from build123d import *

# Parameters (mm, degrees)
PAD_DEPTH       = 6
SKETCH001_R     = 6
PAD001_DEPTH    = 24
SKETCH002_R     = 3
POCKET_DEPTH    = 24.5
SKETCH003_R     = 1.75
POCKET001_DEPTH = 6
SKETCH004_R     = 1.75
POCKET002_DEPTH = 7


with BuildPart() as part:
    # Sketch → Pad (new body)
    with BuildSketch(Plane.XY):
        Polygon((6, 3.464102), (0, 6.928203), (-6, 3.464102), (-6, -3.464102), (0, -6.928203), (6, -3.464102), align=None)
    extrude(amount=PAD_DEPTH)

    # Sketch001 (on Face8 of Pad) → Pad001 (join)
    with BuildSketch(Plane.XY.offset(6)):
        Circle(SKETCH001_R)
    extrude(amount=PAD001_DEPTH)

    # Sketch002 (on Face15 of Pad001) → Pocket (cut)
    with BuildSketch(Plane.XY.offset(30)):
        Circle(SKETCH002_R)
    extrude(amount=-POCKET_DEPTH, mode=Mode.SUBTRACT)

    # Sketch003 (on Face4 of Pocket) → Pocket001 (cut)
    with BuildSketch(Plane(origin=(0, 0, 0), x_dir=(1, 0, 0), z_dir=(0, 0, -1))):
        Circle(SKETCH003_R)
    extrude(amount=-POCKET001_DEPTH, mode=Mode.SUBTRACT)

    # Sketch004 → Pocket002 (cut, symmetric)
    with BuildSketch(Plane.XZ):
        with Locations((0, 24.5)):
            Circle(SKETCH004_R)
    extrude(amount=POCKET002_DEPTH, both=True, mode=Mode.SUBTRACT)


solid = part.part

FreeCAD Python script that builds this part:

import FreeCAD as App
import Part
import Sketcher
from FreeCAD import Vector
Q = App.Units.Quantity


def add_polygon(sketch, points):
    """Adds a closed chain of lines whose ends are joined by coincident constraints."""
    first, n = sketch.GeometryCount, len(points)
    for a, b in zip(points, points[1:] + points[:1]):
        sketch.addGeometry(Part.LineSegment(App.Vector(*a, 0), App.Vector(*b, 0)), False)
    for i in range(n):
        sketch.addConstraint(Sketcher.Constraint("Coincident", first + i, 2, first + (i + 1) % n, 1))

doc = App.newDocument("Part")
body = doc.addObject("PartDesign::Body", "Body")

# Sketch on XY plane
sketch1 = body.newObject("Sketcher::SketchObject", "Sketch")
sketch1.AttachmentSupport = (doc.getObject("XY_Plane"), [""])
sketch1.MapMode = "FlatFace"
add_polygon(sketch1, [(6, 3.464102), (0, 6.928203), (-6, 3.464102), (-6, -3.464102), (0, -6.928203), (6, -3.464102)])  # lines 0-5
sketch1.addConstraint(Sketcher.Constraint("Vertical", 2))
sketch1.addConstraint(Sketcher.Constraint("Vertical", 5))
sketch1.addConstraint(Sketcher.Constraint("Symmetric", 0, 2, 3, 2, -1, 1))
sketch1.addConstraint(Sketcher.Constraint("Symmetric", 1, 2, 4, 2, -1, 1))
sketch1.addConstraint(Sketcher.Constraint("PointOnObject", 0, 2, -2))
sketch1.addConstraint(Sketcher.Constraint("Parallel", 0, 3))
sketch1.addConstraint(Sketcher.Constraint("Horizontal", 2, 2, 4, 2))
sketch1.addConstraint(Sketcher.Constraint("Angle", 0, Q("150.000004 deg")))
sketch1.addConstraint(Sketcher.Constraint("DistanceX", 1, 2, -1, 1, Q("6 mm")))
sketch1.addConstraint(Sketcher.Constraint("DistanceY", -1, 1, 1, 2, Q("3.464102 mm")))
pad1 = body.newObject("PartDesign::Pad", "Pad")
pad1.Profile = sketch1
pad1.Length = 6

# Sketch on XY plane
sketch2 = body.newObject("Sketcher::SketchObject", "Sketch001")
sketch2.AttachmentSupport = (doc.getObject("XY_Plane"), [""])
sketch2.MapMode = "FlatFace"
sketch2.AttachmentOffset = App.Placement(Vector(0, 0, 6), App.Rotation())
sketch2.addGeometry(Part.Circle(Vector(0, 0, 0), Vector(0, 0, 1), 6), False)
sketch2.addConstraint(Sketcher.Constraint("Coincident", 0, 3, -1, 1))
sketch2.addConstraint(Sketcher.Constraint("Diameter", 0, Q("12 mm")))
pad2 = body.newObject("PartDesign::Pad", "Pad001")
pad2.Profile = sketch2
pad2.Length = 24

# Sketch on XY plane
sketch3 = body.newObject("Sketcher::SketchObject", "Sketch002")
sketch3.AttachmentSupport = (doc.getObject("XY_Plane"), [""])
sketch3.MapMode = "FlatFace"
sketch3.AttachmentOffset = App.Placement(Vector(0, 0, 30), App.Rotation())
sketch3.addGeometry(Part.Circle(Vector(0, 0, 0), Vector(0, 0, 1), 3), False)
sketch3.addConstraint(Sketcher.Constraint("Coincident", 0, 3, -1, 1))
sketch3.addConstraint(Sketcher.Constraint("Diameter", 0, Q("6 mm")))
pocket1 = body.newObject("PartDesign::Pocket", "Pocket")
pocket1.Profile = sketch3
pocket1.Length = 24.5

# Sketch on XY plane
sketch4 = body.newObject("Sketcher::SketchObject", "Sketch003")
sketch4.AttachmentSupport = (doc.getObject("XY_Plane"), [""])
sketch4.MapMode = "FlatFace"
sketch4.addGeometry(Part.Circle(Vector(0, 0, 0), Vector(0, 0, 1), 1.75), False)
sketch4.addConstraint(Sketcher.Constraint("Coincident", 0, 3, -1, 1))
sketch4.addConstraint(Sketcher.Constraint("Diameter", 0, Q("3.5 mm")))
pocket2 = body.newObject("PartDesign::Pocket", "Pocket001")
pocket2.Profile = sketch4
pocket2.Length = 6
pocket2.Reversed = True

# Sketch on XZ plane
sketch5 = body.newObject("Sketcher::SketchObject", "Sketch004")
sketch5.AttachmentSupport = (doc.getObject("XZ_Plane"), [""])
sketch5.MapMode = "FlatFace"
sketch5.addGeometry(Part.Circle(Vector(0, 24.5, 0), Vector(0, 0, 1), 1.75), False)
sketch5.addConstraint(Sketcher.Constraint("PointOnObject", 0, 3, -2))
sketch5.addConstraint(Sketcher.Constraint("Diameter", 0, Q("3.5 mm")))
sketch5.addConstraint(Sketcher.Constraint("DistanceY", -1, 1, 0, 3, Q("24.5 mm")))
pocket3 = body.newObject("PartDesign::Pocket", "Pocket002")
pocket3.Profile = sketch5
pocket3.Length = 14
pocket3.Midplane = True

doc.recompute()
